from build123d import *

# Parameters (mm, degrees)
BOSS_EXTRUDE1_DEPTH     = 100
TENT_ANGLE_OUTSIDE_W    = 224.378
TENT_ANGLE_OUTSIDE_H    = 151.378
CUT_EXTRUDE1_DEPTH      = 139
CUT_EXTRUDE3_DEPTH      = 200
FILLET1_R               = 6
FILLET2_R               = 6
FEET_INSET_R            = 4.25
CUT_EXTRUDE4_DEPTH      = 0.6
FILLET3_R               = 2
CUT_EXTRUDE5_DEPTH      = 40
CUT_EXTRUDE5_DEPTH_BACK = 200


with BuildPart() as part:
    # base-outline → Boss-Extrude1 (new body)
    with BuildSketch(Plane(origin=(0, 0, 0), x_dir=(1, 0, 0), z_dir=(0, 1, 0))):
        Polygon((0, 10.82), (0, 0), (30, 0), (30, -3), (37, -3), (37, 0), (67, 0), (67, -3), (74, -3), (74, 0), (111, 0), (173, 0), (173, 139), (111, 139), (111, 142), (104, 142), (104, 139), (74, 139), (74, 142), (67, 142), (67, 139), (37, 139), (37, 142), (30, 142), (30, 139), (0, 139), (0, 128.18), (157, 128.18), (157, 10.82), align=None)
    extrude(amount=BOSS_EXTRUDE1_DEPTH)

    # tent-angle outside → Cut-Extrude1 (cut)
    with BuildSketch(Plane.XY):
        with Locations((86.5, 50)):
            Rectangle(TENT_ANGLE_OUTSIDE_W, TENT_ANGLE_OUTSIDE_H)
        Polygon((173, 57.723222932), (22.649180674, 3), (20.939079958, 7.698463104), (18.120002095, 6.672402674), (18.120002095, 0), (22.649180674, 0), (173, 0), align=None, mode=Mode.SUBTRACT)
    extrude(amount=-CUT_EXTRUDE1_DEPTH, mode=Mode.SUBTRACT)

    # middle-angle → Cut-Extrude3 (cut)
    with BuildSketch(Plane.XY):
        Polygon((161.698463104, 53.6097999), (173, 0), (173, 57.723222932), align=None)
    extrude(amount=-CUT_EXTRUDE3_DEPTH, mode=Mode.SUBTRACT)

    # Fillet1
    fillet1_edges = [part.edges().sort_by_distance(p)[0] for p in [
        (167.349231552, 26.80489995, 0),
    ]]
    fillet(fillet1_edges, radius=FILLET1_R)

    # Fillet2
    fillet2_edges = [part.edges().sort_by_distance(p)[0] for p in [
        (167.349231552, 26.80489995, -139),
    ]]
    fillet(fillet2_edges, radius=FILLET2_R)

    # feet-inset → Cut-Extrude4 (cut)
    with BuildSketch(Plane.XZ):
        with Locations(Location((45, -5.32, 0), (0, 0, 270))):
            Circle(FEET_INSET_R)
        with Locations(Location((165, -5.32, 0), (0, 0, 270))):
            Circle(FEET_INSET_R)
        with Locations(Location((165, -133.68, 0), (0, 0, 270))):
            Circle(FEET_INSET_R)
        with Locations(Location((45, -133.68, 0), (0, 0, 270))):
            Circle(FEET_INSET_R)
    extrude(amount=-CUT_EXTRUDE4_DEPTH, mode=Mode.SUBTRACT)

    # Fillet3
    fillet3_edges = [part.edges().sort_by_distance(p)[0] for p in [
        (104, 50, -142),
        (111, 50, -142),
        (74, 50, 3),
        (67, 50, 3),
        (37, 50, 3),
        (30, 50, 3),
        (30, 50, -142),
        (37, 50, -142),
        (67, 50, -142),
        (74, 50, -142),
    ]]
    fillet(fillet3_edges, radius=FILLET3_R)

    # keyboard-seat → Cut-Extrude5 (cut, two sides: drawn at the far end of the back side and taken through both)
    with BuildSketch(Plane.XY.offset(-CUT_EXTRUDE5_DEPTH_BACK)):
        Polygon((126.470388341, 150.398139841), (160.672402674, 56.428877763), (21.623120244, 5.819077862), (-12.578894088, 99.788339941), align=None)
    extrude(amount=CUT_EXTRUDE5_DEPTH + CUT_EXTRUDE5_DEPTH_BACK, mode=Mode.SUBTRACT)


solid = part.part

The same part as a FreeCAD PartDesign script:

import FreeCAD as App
import Part
import Sketcher

V = App.Vector
Q = App.Units.Quantity


def edges_at(feature, points):
    """Names of the edges that pass closest to the given points."""
    edges = feature.Shape.Edges
    near = lambda p: min(range(len(edges)), key=lambda i: edges[i].distToShape(Part.Vertex(*p))[0])
    return sorted({f"Edge{near(p) + 1}" for p in points})

doc = App.newDocument("Part")
body = doc.addObject("PartDesign::Body", "Body")

sketch1 = body.newObject("Sketcher::SketchObject", "Sketch")
sketch1.AttachmentSupport = (doc.getObject("XZ_Plane"), [""])
sketch1.MapMode = "FlatFace"
sketch1.addGeometry([
    Part.LineSegment(V(0, -10.8, 0), V(0, 0, 0)),
    Part.LineSegment(V(0, 0, 0), V(30, 0, 0)),
    Part.LineSegment(V(30, 0, 0), V(30, 3, 0)),
    Part.LineSegment(V(30, 3, 0), V(37, 3, 0)),
    Part.LineSegment(V(37, 3, 0), V(37, 0, 0)),
    Part.LineSegment(V(37, 0, 0), V(67, 0, 0)),
    Part.LineSegment(V(67, 0, 0), V(67, 3, 0)),
    Part.LineSegment(V(67, 3, 0), V(74, 3, 0)),
    Part.LineSegment(V(74, 3, 0), V(74, 0, 0)),
    Part.LineSegment(V(74, 0, 0), V(173, 0, 0)),
    Part.LineSegment(V(173, 0, 0), V(173, -139, 0)),
    Part.LineSegment(V(173, -139, 0), V(111, -139, 0)),
    Part.LineSegment(V(111, -139, 0), V(111, -142, 0)),
    Part.LineSegment(V(111, -142, 0), V(104, -142, 0)),
    Part.LineSegment(V(104, -142, 0), V(104, -139, 0)),
    Part.LineSegment(V(104, -139, 0), V(74, -139, 0)),
    Part.LineSegment(V(74, -139, 0), V(74, -142, 0)),
    Part.LineSegment(V(74, -142, 0), V(67, -142, 0)),
    Part.LineSegment(V(67, -142, 0), V(67, -139, 0)),
    Part.LineSegment(V(67, -139, 0), V(37, -139, 0)),
    Part.LineSegment(V(37, -139, 0), V(37, -142, 0)),
    Part.LineSegment(V(37, -142, 0), V(30, -142, 0)),
    Part.LineSegment(V(30, -142, 0), V(30, -139, 0)),
    Part.LineSegment(V(30, -139, 0), V(0, -139, 0)),
    Part.LineSegment(V(0, -139, 0), V(0, -128.2, 0)),
    Part.LineSegment(V(0, -128.2, 0), V(157, -128.2, 0)),
    Part.LineSegment(V(157, -128.2, 0), V(157, -10.8, 0)),
    Part.LineSegment(V(157, -10.8, 0), V(0, -10.8, 0)),
], False)
sketch1.addConstraint([
    Sketcher.Constraint("Coincident", 0, 2, 1, 1),
    Sketcher.Constraint("Coincident", 1, 2, 2, 1),
    Sketcher.Constraint("Coincident", 2, 2, 3, 1),
    Sketcher.Constraint("Coincident", 3, 2, 4, 1),
    Sketcher.Constraint("Coincident", 4, 2, 5, 1),
    Sketcher.Constraint("Coincident", 5, 2, 6, 1),
    Sketcher.Constraint("Coincident", 6, 2, 7, 1),
    Sketcher.Constraint("Coincident", 7, 2, 8, 1),
    Sketcher.Constraint("Coincident", 8, 2, 9, 1),
    Sketcher.Constraint("Coincident", 9, 2, 10, 1),
    Sketcher.Constraint("Coincident", 10, 2, 11, 1),
    Sketcher.Constraint("Coincident", 11, 2, 12, 1),
    Sketcher.Constraint("Coincident", 12, 2, 13, 1),
    Sketcher.Constraint("Coincident", 13, 2, 14, 1),
    Sketcher.Constraint("Coincident", 14, 2, 15, 1),
    Sketcher.Constraint("Coincident", 15, 2, 16, 1),
    Sketcher.Constraint("Coincident", 16, 2, 17, 1),
    Sketcher.Constraint("Coincident", 17, 2, 18, 1),
    Sketcher.Constraint("Coincident", 18, 2, 19, 1),
    Sketcher.Constraint("Coincident", 19, 2, 20, 1),
    Sketcher.Constraint("Coincident", 20, 2, 21, 1),
    Sketcher.Constraint("Coincident", 21, 2, 22, 1),
    Sketcher.Constraint("Coincident", 22, 2, 23, 1),
    Sketcher.Constraint("Coincident", 23, 2, 24, 1),
    Sketcher.Constraint("Coincident", 24, 2, 25, 1),
    Sketcher.Constraint("Coincident", 25, 2, 26, 1),
    Sketcher.Constraint("Coincident", 26, 2, 27, 1),
    Sketcher.Constraint("Coincident", 27, 2, 0, 1),
    Sketcher.Constraint("Vertical", 0),
    Sketcher.Constraint("Horizontal", 1),
    Sketcher.Constraint("Vertical", 2),
    Sketcher.Constraint("Horizontal", 3),
    Sketcher.Constraint("Vertical", 4),
    Sketcher.Constraint("Horizontal", 5),
    Sketcher.Constraint("Vertical", 6),
    Sketcher.Constraint("Horizontal", 7),
    Sketcher.Constraint("Vertical", 8),
    Sketcher.Constraint("Horizontal", 9),
    Sketcher.Constraint("Vertical", 10),
    Sketcher.Constraint("Horizontal", 11),
    Sketcher.Constraint("Vertical", 12),
    Sketcher.Constraint("Horizontal", 13),
    Sketcher.Constraint("Vertical", 14),
    Sketcher.Constraint("Horizontal", 15),
    Sketcher.Constraint("Vertical", 16),
    Sketcher.Constraint("Horizontal", 17),
    Sketcher.Constraint("Vertical", 18),
    Sketcher.Constraint("Horizontal", 19),
    Sketcher.Constraint("Vertical", 20),
    Sketcher.Constraint("Horizontal", 21),
    Sketcher.Constraint("Vertical", 22),
    Sketcher.Constraint("Horizontal", 23),
    Sketcher.Constraint("Vertical", 24),
    Sketcher.Constraint("Horizontal", 25),
    Sketcher.Constraint("Vertical", 26),
    Sketcher.Constraint("Horizontal", 27),
    Sketcher.Constraint("Coincident", 0, 2, -1, 1),
    Sketcher.Constraint("PointOnObject", 4, 2, -1),
    Sketcher.Constraint("PointOnObject", 8, 2, -1),
    Sketcher.Constraint("PointOnObject", 23, 2, -2),
    Sketcher.Constraint("Horizontal", 3, 2, 6, 2),
    Sketcher.Constraint("Horizontal", 11, 2, 14, 2),
    Sketcher.Constraint("Horizontal", 13, 2, 16, 2),
    Sketcher.Constraint("Horizontal", 15, 2, 18, 2),
    Sketcher.Constraint("Horizontal", 17, 2, 20, 2),
    Sketcher.Constraint("Horizontal", 19, 2, 22, 2),
    Sketcher.Constraint("Vertical", 8, 2, 15, 2),
    Sketcher.Constraint("Vertical", 6, 2, 17, 2),
    Sketcher.Constraint("Vertical", 4, 2, 19, 2),
    Sketcher.Constraint("Vertical", 2, 2, 21, 2),
    Sketcher.Constraint("Equal", 1, 5),
    Sketcher.Constraint("Equal", 3, 7),
    Sketcher.Constraint("Equal", 7, 13),
    Sketcher.Constraint("Equal", 5, 15),
    Sketcher.Constraint("Equal", 8, 12),
    Sketcher.Constraint("Equal", 0, 24),
    Sketcher.Constraint("DistanceX", 1, 1, 1, 2, 30.0),
    Sketcher.Constraint("DistanceX", 3, 1, 3, 2, 7.0),
    Sketcher.Constraint("DistanceX", 9, 1, 9, 2, 99.0),
    Sketcher.Constraint("DistanceX", 25, 1, 25, 2, 157.0),
    Sketcher.Constraint("DistanceY", 2, 1, 2, 2, 3.0),
    Sketcher.Constraint("DistanceY", 10, 2, 10, 1, 139.0),
    Sketcher.Constraint("DistanceY", 0, 1, 0, 2, 10.82),
])
pad1 = body.newObject("PartDesign::Pad", "Pad")
pad1.Profile = sketch1
pad1.Length = 100
pad1.Reversed = True

sketch2 = body.newObject("Sketcher::SketchObject", "Sketch001")
sketch2.AttachmentSupport = (doc.getObject("XY_Plane"), [""])
sketch2.MapMode = "FlatFace"
sketch2.addGeometry([
    Part.LineSegment(V(-25.7, 125.7, 0), V(-25.7, -25.7, 0)),
    Part.LineSegment(V(-25.7, -25.7, 0), V(198.7, -25.7, 0)),
    Part.LineSegment(V(198.7, -25.7, 0), V(198.7, 125.7, 0)),
    Part.LineSegment(V(198.7, 125.7, 0), V(-25.7, 125.7, 0)),
    Part.LineSegment(V(22.6, 3, 0), V(173, 57.7, 0)),
    Part.LineSegment(V(173, 57.7, 0), V(173, 0, 0)),
    Part.LineSegment(V(173, 0, 0), V(18.1, 0, 0)),
    Part.LineSegment(V(18.1, 0, 0), V(18.1, 6.7, 0)),
    Part.LineSegment(V(18.1, 6.7, 0), V(20.9, 7.7, 0)),
    Part.LineSegment(V(20.9, 7.7, 0), V(22.6, 3, 0)),
], False)
sketch2.addConstraint([
    Sketcher.Constraint("Coincident", 0, 2, 1, 1),
    Sketcher.Constraint("Coincident", 1, 2, 2, 1),
    Sketcher.Constraint("Coincident", 2, 2, 3, 1),
    Sketcher.Constraint("Coincident", 3, 2, 0, 1),
    Sketcher.Constraint("Coincident", 4, 2, 5, 1),
    Sketcher.Constraint("Coincident", 5, 2, 6, 1),
    Sketcher.Constraint("Coincident", 6, 2, 7, 1),
    Sketcher.Constraint("Coincident", 7, 2, 8, 1),
    Sketcher.Constraint("Coincident", 8, 2, 9, 1),
    Sketcher.Constraint("Coincident", 9, 2, 4, 1),
    Sketcher.Constraint("Vertical", 0),
    Sketcher.Constraint("Horizontal", 1),
    Sketcher.Constraint("Vertical", 2),
    Sketcher.Constraint("Horizontal", 3),
    Sketcher.Constraint("Vertical", 5),
    Sketcher.Constraint("Horizontal", 6),
    Sketcher.Constraint("Vertical", 7),
    Sketcher.Constraint("PointOnObject", 5, 2, -1),
    Sketcher.Constraint("Parallel", 4, 8),
    Sketcher.Constraint("Perpendicular", 8, 9),
    Sketcher.Constraint("Angle", 4, Q("20 deg")),
    Sketcher.Constraint("Distance", 4, 160.0),
    Sketcher.Constraint("Distance", 8, 3.0),
    Sketcher.Constraint("Distance", 9, 5.0),
    Sketcher.Constraint("DistanceX", -1, 1, 4, 2, 173.0),
    Sketcher.Constraint("DistanceY", -1, 1, 9, 2, 3.0),
    Sketcher.Constraint("DistanceX", 1, 1, 1, 2, 224.378),
    Sketcher.Constraint("DistanceY", 0, 2, 0, 1, 151.378),
    Sketcher.Constraint("DistanceX", 0, 2, -1, 1, 25.689),
    Sketcher.Constraint("DistanceY", 0, 2, -1, 1, 25.689),
])
pocket1 = body.newObject("PartDesign::Pocket", "Pocket")
pocket1.Profile = sketch2
pocket1.Length = 139

sketch3 = body.newObject("Sketcher::SketchObject", "Sketch002")
sketch3.AttachmentSupport = (doc.getObject("XY_Plane"), [""])
sketch3.MapMode = "FlatFace"
sketch3.addGeometry([
    Part.LineSegment(V(162, 54, 0), V(173, 0, 0)),
    Part.LineSegment(V(173, 0, 0), V(173, 58, 0)),
    Part.LineSegment(V(173, 58, 0), V(162, 54, 0)),
], False)
sketch3.addConstraint([
    Sketcher.Constraint("Coincident", 0, 2, 1, 1),
    Sketcher.Constraint("Coincident", 1, 2, 2, 1),
    Sketcher.Constraint("Coincident", 2, 2, 0, 1),
    Sketcher.Constraint("Vertical", 1),
    Sketcher.Constraint("PointOnObject", 0, 2, -1),
    Sketcher.Constraint("Angle", 2, Q("-160 deg")),
    Sketcher.Constraint("DistanceX", -1, 1, 0, 2, 173.0),
    Sketcher.Constraint("DistanceY", -1, 1, 2, 2, 53.6098),
    Sketcher.Constraint("DistanceY", 1, 1, 1, 2, 57.723223),
])
pocket2 = body.newObject("PartDesign::Pocket", "Pocket001")
pocket2.Profile = sketch3
pocket2.Length = 200
doc.recompute()

fillet = body.newObject("PartDesign::Fillet", "Fillet")
fillet.Base = (pocket2, edges_at(pocket2, [(167.349, 26.805, 0)]))
fillet.Radius = 6
doc.recompute()

fillet2 = body.newObject("PartDesign::Fillet", "Fillet001")
fillet2.Base = (fillet, edges_at(fillet, [(167.349, 26.805, -139)]))
fillet2.Radius = 6

sketch4 = body.newObject("Sketcher::SketchObject", "Sketch003")
sketch4.AttachmentSupport = (doc.getObject("XZ_Plane"), [""])
sketch4.MapMode = "FlatFace"
sketch4.addGeometry([
    Part.Circle(V(45, -5.3, 0), V(0, 0, 1), 4.2),
    Part.Circle(V(165, -5.3, 0), V(0, 0, 1), 4.2),
    Part.Circle(V(165, -133.7, 0), V(0, 0, 1), 4.2),
    Part.Circle(V(45, -133.7, 0), V(0, 0, 1), 4.2),
], False)
sketch4.addConstraint([
    Sketcher.Constraint("Equal", 0, 1),
    Sketcher.Constraint("Equal", 1, 2),
    Sketcher.Constraint("Equal", 2, 3),
    Sketcher.Constraint("Horizontal", 0, 3, 1, 3),
    Sketcher.Constraint("Horizontal", 2, 3, 3, 3),
    Sketcher.Constraint("Vertical", 1, 3, 2, 3),
    Sketcher.Constraint("Vertical", 0, 3, 3, 3),
    Sketcher.Constraint("Diameter", 0, 8.5),
    Sketcher.Constraint("DistanceX", -1, 1, 0, 3, 45.0),
    Sketcher.Constraint("DistanceX", -1, 1, 1, 3, 165.0),
    Sketcher.Constraint("DistanceY", 0, 3, -1, 1, 5.32),
    Sketcher.Constraint("DistanceY", 2, 3, -1, 1, 133.68),
])
pocket3 = body.newObject("PartDesign::Pocket", "Pocket002")
pocket3.Profile = sketch4
pocket3.Length = 0.6
doc.recompute()

fillet3 = body.newObject("PartDesign::Fillet", "Fillet002")
fillet3.Base = (pocket3, edges_at(pocket3, [
    (104, 50, -142),
    (111, 50, -142),
    (74, 50, 3),
    (67, 50, 3),
    (37, 50, 3),
    (30, 50, 3),
    (30, 50, -142),
    (37, 50, -142),
    (67, 50, -142),
    (74, 50, -142),
]))
fillet3.Radius = 2

sketch5 = body.newObject("Sketcher::SketchObject", "Sketch004")
sketch5.AttachmentSupport = (doc.getObject("XY_Plane"), [""])
sketch5.MapMode = "FlatFace"
sketch5.addGeometry([
    Part.LineSegment(V(161, 56, 0), V(126, 150, 0)),
    Part.LineSegment(V(126, 150, 0), V(-13, 100, 0)),
    Part.LineSegment(V(-13, 100, 0), V(22, 6, 0)),
    Part.LineSegment(V(22, 6, 0), V(161, 56, 0)),
], False)
sketch5.addConstraint([
    Sketcher.Constraint("Coincident", 0, 2, 1, 1),
    Sketcher.Constraint("Coincident", 1, 2, 2, 1),
    Sketcher.Constraint("Coincident", 2, 2, 3, 1),
    Sketcher.Constraint("Coincident", 3, 2, 0, 1),
    Sketcher.Constraint("Perpendicular", 0, 1),
    Sketcher.Constraint("Perpendicular", 1, 2),
    Sketcher.Constraint("Perpendicular", 2, 3),
    Sketcher.Constraint("Angle", 0, Q("110 deg")),
    Sketcher.Constraint("Distance", 0, 100.0),
    Sketcher.Constraint("DistanceY", 1, 2, 0, 2, 50.6098),
    Sketcher.Constraint("DistanceX", -1, 1, 0, 2, 126.470388),
    Sketcher.Constraint("DistanceY", -1, 1, 0, 2, 150.39814),
])
pocket4 = body.newObject("PartDesign::Pocket", "Pocket003")
pocket4.Profile = sketch5
pocket4.Type = "ThroughAll"
pocket4.Midplane = True

doc.recompute()
